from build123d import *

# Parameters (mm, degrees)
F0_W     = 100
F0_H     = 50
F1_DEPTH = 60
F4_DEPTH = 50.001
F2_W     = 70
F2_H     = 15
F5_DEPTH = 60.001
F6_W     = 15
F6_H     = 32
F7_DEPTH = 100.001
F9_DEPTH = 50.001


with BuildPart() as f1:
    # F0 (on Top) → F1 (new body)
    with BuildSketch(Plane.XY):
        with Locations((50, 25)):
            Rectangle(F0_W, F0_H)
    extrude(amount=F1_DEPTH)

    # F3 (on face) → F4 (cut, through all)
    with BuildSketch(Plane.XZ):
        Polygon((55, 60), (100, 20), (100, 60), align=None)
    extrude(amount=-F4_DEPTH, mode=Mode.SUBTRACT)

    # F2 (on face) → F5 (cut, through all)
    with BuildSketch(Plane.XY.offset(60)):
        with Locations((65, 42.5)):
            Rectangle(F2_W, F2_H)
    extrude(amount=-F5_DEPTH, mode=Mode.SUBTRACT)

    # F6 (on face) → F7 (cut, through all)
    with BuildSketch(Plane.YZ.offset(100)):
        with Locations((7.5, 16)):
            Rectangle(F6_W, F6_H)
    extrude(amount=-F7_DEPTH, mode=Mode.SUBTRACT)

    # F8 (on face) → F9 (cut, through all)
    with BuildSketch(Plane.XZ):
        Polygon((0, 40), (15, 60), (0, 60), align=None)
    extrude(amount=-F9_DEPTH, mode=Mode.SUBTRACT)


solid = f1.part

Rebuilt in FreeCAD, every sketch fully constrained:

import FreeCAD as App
import Part
import Sketcher

V = App.Vector
Q = App.Units.Quantity


def add_polygon(sketch, points):
    """Adds a closed chain of lines whose ends are joined by coincident constraints."""
    first, n = sketch.GeometryCount, len(points)
    for a, b in zip(points, points[1:] + points[:1]):
        sketch.addGeometry(Part.LineSegment(App.Vector(*a, 0), App.Vector(*b, 0)), False)
    for i in range(n):
        sketch.addConstraint(Sketcher.Constraint("Coincident", first + i, 2, first + (i + 1) % n, 1))

doc = App.newDocument("Part")
body = doc.addObject("PartDesign::Body", "Body")

sketch1 = body.newObject("Sketcher::SketchObject", "Sketch")
sketch1.AttachmentSupport = (doc.getObject("XY_Plane"), [""])
sketch1.MapMode = "FlatFace"
add_polygon(sketch1, [(0, 50), (0, 0), (100, 0), (100, 50)])
sketch1.addConstraint([
    Sketcher.Constraint("Vertical", 0),
    Sketcher.Constraint("Horizontal", 1),
    Sketcher.Constraint("Vertical", 2),
    Sketcher.Constraint("Horizontal", 3),
    Sketcher.Constraint("Coincident", 0, 2, -1, 1),
    Sketcher.Constraint("DistanceX", 1, 1, 1, 2, Q("100 mm")),
    Sketcher.Constraint("DistanceY", 0, 2, 0, 1, Q("50 mm")),
])
pad1 = body.newObject("PartDesign::Pad", "Pad")
pad1.Profile = sketch1
pad1.Length = 60

sketch2 = body.newObject("Sketcher::SketchObject", "Sketch001")
sketch2.AttachmentSupport = (doc.getObject("XZ_Plane"), [""])
sketch2.MapMode = "FlatFace"
add_polygon(sketch2, [(55, 60), (100, 20), (100, 60)])
sketch2.addConstraint([
    Sketcher.Constraint("Vertical", 1),
    Sketcher.Constraint("Horizontal", 2),
    Sketcher.Constraint("DistanceX", 2, 2, 2, 1, Q("45 mm")),
    Sketcher.Constraint("DistanceY", 1, 1, 1, 2, Q("40 mm")),
    Sketcher.Constraint("DistanceX", -1, 1, 0, 2, Q("100 mm")),
    Sketcher.Constraint("DistanceY", -1, 1, 0, 2, Q("20 mm")),
])
pocket1 = body.newObject("PartDesign::Pocket", "Pocket")
pocket1.Profile = sketch2
pocket1.Type = "ThroughAll"

sketch3 = body.newObject("Sketcher::SketchObject", "Sketch002")
sketch3.AttachmentSupport = (doc.getObject("XY_Plane"), [""])
sketch3.MapMode = "FlatFace"
sketch3.AttachmentOffset = App.Placement(V(0, 0, 60), App.Rotation())
add_polygon(sketch3, [(30, 50), (30, 35), (100, 35), (100, 50)])
sketch3.addConstraint([
    Sketcher.Constraint("Vertical", 0),
    Sketcher.Constraint("Horizontal", 1),
    Sketcher.Constraint("Vertical", 2),
    Sketcher.Constraint("Horizontal", 3),
    Sketcher.Constraint("DistanceX", 1, 1, 1, 2, Q("70 mm")),
    Sketcher.Constraint("DistanceY", 0, 2, 0, 1, Q("15 mm")),
    Sketcher.Constraint("DistanceX", -1, 1, 0, 2, Q("30 mm")),
    Sketcher.Constraint("DistanceY", -1, 1, 0, 2, Q("35 mm")),
])
pocket2 = body.newObject("PartDesign::Pocket", "Pocket001")
pocket2.Profile = sketch3
pocket2.Type = "ThroughAll"

sketch4 = body.newObject("Sketcher::SketchObject", "Sketch003")
sketch4.AttachmentSupport = (doc.getObject("YZ_Plane"), [""])
sketch4.MapMode = "FlatFace"
sketch4.AttachmentOffset = App.Placement(V(0, 0, 100), App.Rotation())
add_polygon(sketch4, [(0, 32), (0, 0), (15, 0), (15, 32)])
sketch4.addConstraint([
    Sketcher.Constraint("Vertical", 0),
    Sketcher.Constraint("Horizontal", 1),
    Sketcher.Constraint("Vertical", 2),
    Sketcher.Constraint("Horizontal", 3),
    Sketcher.Constraint("Coincident", 0, 2, -1, 1),
    Sketcher.Constraint("DistanceX", 1, 1, 1, 2, Q("15 mm")),
    Sketcher.Constraint("DistanceY", 0, 2, 0, 1, Q("32 mm")),
])
pocket3 = body.newObject("PartDesign::Pocket", "Pocket002")
pocket3.Profile = sketch4
pocket3.Type = "ThroughAll"

sketch5 = body.newObject("Sketcher::SketchObject", "Sketch004")
sketch5.AttachmentSupport = (doc.getObject("XZ_Plane"), [""])
sketch5.MapMode = "FlatFace"
add_polygon(sketch5, [(0, 40), (15, 60), (0, 60)])
sketch5.addConstraint([
    Sketcher.Constraint("Horizontal", 1),
    Sketcher.Constraint("Vertical", 2),
    Sketcher.Constraint("PointOnObject", 1, 2, -2),
    Sketcher.Constraint("DistanceX", 1, 2, 1, 1, Q("15 mm")),
    Sketcher.Constraint("DistanceY", 2, 2, 2, 1, Q("20 mm")),
    Sketcher.Constraint("DistanceY", -1, 1, 0, 2, Q("60 mm")),
])
pocket4 = body.newObject("PartDesign::Pocket", "Pocket003")
pocket4.Profile = sketch5
pocket4.Type = "ThroughAll"

doc.recompute()
